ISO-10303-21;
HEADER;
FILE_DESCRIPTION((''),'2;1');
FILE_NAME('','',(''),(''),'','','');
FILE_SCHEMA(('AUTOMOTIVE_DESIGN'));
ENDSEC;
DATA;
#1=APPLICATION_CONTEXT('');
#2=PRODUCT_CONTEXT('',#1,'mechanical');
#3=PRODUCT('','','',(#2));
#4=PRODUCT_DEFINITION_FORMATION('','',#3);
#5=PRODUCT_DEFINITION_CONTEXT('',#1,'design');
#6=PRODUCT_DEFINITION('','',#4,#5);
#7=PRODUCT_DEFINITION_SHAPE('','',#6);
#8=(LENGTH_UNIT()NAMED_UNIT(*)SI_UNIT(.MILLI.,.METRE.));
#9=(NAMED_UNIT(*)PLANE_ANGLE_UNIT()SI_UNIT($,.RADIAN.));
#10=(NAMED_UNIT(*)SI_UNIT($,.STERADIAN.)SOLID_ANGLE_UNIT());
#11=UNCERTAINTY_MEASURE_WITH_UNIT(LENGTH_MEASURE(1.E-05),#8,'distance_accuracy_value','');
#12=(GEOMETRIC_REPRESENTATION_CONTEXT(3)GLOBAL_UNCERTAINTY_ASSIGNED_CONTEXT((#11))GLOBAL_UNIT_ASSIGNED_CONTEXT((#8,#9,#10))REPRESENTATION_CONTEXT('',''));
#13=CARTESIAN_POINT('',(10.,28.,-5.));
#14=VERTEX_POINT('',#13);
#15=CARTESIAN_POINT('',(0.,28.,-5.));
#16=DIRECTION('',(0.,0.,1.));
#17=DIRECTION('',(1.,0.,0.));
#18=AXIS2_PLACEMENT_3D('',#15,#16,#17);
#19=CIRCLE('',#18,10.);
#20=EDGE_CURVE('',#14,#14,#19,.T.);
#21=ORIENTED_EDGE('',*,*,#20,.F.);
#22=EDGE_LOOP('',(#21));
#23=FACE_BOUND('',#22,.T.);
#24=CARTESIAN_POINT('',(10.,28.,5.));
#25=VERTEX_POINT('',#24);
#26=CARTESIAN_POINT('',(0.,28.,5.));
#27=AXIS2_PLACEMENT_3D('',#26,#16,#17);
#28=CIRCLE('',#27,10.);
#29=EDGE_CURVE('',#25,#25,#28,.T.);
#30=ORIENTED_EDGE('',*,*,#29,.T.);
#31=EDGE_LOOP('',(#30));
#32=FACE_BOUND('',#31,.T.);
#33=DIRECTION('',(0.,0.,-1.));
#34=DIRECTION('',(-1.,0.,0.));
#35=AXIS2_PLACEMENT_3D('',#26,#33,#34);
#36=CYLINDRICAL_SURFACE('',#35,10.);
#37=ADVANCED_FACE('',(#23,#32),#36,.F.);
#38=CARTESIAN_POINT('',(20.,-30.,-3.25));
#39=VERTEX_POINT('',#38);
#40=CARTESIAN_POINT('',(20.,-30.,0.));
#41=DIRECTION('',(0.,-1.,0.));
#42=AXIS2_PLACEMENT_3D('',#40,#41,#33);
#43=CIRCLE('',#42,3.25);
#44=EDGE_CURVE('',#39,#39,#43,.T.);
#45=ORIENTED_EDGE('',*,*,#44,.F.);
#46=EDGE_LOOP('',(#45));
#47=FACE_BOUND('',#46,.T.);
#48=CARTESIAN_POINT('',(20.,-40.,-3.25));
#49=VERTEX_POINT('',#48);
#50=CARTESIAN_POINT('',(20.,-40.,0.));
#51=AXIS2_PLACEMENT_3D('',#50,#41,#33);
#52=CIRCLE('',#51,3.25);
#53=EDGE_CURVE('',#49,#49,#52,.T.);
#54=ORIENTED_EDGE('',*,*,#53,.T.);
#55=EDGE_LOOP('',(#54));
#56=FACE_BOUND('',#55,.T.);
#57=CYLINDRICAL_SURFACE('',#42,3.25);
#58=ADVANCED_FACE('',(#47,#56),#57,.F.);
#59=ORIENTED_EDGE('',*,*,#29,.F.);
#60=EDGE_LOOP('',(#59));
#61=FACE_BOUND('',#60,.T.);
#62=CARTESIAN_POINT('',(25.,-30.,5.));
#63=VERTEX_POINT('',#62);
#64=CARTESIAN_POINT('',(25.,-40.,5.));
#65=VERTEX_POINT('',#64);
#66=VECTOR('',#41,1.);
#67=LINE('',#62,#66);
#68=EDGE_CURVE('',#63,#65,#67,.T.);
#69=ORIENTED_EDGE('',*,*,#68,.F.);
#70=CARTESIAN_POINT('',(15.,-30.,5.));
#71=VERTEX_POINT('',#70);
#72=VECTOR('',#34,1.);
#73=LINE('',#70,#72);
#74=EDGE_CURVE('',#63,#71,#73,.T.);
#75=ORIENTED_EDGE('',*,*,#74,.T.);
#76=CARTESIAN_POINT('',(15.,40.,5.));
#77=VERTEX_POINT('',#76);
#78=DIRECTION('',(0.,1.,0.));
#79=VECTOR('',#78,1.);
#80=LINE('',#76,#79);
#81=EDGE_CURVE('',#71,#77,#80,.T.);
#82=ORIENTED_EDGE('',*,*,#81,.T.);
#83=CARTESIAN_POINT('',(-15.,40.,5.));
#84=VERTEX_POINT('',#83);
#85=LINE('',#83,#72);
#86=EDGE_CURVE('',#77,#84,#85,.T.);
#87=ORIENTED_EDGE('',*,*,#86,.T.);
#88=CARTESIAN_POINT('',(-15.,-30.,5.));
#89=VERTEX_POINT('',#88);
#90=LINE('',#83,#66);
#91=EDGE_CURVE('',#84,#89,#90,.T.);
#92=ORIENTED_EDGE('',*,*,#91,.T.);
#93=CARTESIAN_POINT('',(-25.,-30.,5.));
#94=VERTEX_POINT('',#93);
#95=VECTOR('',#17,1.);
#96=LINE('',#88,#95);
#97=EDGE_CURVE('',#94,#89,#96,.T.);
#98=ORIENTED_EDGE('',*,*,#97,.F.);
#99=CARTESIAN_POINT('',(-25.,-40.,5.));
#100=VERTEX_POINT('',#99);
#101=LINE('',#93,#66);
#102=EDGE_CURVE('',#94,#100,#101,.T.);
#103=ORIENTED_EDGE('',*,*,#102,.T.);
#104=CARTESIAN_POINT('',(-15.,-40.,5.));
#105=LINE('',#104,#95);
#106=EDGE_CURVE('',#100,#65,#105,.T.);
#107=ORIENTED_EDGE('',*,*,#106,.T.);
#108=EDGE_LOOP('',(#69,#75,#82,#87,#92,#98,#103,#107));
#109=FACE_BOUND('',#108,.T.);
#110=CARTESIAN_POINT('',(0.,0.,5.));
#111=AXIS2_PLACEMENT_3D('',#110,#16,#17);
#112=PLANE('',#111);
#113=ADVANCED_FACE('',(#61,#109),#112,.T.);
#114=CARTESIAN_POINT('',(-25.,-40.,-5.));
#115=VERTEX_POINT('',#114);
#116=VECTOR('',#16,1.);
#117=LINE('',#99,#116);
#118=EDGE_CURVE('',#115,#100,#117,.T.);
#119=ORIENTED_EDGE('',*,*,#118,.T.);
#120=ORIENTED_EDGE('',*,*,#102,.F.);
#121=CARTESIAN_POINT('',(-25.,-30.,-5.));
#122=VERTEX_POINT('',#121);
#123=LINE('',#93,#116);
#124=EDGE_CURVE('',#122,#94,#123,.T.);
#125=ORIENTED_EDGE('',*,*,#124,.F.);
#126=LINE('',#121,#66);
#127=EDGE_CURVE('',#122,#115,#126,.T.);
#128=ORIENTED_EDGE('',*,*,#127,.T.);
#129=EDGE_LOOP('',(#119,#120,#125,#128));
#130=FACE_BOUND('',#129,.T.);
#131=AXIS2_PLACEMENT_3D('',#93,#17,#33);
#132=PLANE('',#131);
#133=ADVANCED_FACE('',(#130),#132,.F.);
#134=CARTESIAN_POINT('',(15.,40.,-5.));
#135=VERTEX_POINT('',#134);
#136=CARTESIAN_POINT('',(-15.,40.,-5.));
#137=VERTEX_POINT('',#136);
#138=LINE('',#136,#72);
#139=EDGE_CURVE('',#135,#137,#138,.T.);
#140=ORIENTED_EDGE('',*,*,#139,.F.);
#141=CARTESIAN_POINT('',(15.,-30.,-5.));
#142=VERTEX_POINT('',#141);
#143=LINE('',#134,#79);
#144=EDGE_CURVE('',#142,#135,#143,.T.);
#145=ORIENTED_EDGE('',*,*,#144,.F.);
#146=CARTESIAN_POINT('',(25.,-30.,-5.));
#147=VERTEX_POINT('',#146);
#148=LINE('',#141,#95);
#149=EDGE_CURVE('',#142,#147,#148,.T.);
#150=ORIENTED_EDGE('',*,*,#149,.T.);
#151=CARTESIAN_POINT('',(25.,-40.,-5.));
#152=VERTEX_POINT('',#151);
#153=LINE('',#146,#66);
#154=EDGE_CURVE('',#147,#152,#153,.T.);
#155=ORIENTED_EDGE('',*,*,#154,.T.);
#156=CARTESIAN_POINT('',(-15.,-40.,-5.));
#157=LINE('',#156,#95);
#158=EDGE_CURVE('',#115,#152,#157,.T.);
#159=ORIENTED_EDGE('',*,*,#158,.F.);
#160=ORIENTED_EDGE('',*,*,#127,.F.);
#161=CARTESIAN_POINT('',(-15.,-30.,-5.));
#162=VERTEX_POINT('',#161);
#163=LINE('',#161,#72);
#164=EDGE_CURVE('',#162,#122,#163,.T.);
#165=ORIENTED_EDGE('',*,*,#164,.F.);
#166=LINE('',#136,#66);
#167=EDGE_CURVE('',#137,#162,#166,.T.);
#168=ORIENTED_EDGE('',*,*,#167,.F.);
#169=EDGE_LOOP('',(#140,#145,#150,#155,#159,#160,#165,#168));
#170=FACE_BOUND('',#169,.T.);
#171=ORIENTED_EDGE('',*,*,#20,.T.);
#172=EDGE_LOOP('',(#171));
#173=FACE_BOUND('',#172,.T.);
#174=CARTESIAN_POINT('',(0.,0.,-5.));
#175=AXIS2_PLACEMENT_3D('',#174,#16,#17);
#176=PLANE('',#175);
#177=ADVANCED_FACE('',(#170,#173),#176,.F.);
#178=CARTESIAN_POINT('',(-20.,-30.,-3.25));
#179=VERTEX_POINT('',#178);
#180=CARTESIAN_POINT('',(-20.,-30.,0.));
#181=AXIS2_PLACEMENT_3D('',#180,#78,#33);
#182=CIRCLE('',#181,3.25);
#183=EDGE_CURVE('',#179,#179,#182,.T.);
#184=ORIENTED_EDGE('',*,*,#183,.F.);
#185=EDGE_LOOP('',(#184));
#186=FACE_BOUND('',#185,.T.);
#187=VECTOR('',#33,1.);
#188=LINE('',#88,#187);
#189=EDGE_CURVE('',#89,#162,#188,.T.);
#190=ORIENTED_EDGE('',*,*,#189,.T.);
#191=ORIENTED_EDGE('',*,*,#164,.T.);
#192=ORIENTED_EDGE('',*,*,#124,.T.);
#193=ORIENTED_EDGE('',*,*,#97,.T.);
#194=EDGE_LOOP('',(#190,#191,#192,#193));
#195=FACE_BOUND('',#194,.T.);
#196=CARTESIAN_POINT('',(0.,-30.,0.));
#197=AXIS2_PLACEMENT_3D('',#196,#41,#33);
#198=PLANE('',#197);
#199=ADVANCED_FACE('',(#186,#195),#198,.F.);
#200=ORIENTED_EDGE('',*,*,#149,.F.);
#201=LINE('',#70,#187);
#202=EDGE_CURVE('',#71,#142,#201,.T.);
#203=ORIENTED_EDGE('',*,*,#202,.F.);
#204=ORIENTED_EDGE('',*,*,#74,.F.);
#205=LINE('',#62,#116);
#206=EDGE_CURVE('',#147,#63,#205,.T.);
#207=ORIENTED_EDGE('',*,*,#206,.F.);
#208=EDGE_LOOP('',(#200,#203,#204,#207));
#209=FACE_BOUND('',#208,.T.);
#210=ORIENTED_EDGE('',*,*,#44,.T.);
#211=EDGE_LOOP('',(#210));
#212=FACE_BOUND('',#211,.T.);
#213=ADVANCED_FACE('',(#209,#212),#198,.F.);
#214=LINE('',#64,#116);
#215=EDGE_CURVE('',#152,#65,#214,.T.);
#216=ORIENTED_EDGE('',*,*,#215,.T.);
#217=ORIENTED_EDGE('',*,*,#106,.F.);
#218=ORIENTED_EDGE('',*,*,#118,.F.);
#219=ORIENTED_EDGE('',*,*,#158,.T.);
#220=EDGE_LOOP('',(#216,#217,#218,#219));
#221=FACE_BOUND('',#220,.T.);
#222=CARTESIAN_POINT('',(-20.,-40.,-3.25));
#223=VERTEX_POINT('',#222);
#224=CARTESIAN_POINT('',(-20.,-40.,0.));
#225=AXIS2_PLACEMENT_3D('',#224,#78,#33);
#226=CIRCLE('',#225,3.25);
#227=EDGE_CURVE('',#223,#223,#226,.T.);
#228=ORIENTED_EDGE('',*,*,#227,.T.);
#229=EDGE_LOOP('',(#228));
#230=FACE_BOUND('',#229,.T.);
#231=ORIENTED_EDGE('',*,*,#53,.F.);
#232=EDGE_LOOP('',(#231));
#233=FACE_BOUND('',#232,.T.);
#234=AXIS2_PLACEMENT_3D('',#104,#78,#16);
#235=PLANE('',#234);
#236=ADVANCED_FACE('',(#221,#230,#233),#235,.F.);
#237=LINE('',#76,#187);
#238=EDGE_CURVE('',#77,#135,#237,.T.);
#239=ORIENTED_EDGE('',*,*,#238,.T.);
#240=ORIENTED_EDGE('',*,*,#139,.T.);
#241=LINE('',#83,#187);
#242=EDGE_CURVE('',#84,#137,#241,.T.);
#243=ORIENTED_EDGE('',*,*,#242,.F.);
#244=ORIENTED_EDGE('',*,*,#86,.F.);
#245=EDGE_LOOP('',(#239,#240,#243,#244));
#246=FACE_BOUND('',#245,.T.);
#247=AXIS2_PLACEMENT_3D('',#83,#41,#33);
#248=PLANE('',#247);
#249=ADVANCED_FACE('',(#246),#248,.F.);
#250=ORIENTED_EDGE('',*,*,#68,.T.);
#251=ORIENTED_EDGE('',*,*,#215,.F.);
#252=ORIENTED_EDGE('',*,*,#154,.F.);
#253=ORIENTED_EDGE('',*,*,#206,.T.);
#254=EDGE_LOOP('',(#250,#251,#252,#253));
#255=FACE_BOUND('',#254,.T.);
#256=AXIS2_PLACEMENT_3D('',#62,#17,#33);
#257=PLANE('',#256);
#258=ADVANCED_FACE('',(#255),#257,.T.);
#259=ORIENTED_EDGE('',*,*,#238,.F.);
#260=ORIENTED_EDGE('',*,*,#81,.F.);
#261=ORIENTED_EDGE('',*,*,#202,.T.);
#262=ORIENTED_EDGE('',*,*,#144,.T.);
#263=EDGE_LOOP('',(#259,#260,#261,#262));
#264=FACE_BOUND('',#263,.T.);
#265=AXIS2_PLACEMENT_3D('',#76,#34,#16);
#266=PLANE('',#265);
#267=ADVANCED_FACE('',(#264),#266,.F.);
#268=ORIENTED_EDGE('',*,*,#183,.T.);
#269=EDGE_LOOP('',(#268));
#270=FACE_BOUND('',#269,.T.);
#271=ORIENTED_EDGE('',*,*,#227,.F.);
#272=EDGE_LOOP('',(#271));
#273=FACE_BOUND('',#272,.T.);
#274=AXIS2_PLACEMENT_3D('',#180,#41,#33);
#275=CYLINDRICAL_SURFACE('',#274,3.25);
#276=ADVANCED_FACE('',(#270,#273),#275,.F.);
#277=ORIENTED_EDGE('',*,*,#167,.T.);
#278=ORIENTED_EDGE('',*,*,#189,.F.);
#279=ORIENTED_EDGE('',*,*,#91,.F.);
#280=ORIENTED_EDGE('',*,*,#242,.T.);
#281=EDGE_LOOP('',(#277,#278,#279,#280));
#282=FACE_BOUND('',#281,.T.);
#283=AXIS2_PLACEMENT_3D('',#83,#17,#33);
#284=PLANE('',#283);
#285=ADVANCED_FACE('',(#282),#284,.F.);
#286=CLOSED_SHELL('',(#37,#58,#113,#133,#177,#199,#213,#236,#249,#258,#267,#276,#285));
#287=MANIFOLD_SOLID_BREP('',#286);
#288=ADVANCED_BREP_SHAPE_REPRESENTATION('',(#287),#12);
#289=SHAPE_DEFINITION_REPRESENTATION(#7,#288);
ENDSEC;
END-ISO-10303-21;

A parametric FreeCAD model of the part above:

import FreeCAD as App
import Part
import Sketcher
from FreeCAD import Vector
Q = App.Units.Quantity

doc = App.newDocument("Part")
body = doc.addObject("PartDesign::Body", "Body")

# Sketch on XY plane
sketch1 = body.newObject("Sketcher::SketchObject", "Sketch")
sketch1.AttachmentSupport = (doc.getObject("XY_Plane"), [""])
sketch1.MapMode = "FlatFace"
sketch1.addGeometry([
    Part.LineSegment(Vector(-15, 40, 0), Vector(-15, -40, 0)),  # 0
    Part.LineSegment(Vector(-15, -40, 0), Vector(15, -40, 0)),  # 1
    Part.LineSegment(Vector(15, -40, 0), Vector(15, 40, 0)),  # 2
    Part.LineSegment(Vector(15, 40, 0), Vector(-15, 40, 0)),  # 3
    Part.Circle(Vector(0, 28, 0), Vector(0, 0, 1), 10),  # 4
], False)
sketch1.addConstraint([
    Sketcher.Constraint("Coincident", 0, 2, 1, 1),
    Sketcher.Constraint("Coincident", 1, 2, 2, 1),
    Sketcher.Constraint("Coincident", 2, 2, 3, 1),
    Sketcher.Constraint("Coincident", 3, 2, 0, 1),
    Sketcher.Constraint("Vertical", 0),
    Sketcher.Constraint("Horizontal", 1),
    Sketcher.Constraint("Vertical", 2),
    Sketcher.Constraint("Horizontal", 3),
    Sketcher.Constraint("Symmetric", 0, 2, 2, 2, -1, 1),
    Sketcher.Constraint("PointOnObject", 4, 3, -2),
    Sketcher.Constraint("Diameter", 4, Q("20 mm")),
    Sketcher.Constraint("DistanceX", 1, 1, 1, 2, Q("30 mm")),
    Sketcher.Constraint("DistanceY", 0, 2, 0, 1, Q("80 mm")),
    Sketcher.Constraint("DistanceY", -1, 1, 4, 3, Q("28 mm")),
])
pad1 = body.newObject("PartDesign::Pad", "Pad")
pad1.Profile = sketch1
pad1.Length = 10
pad1.Midplane = True

# Sketch on XZ plane
sketch2 = body.newObject("Sketcher::SketchObject", "Sketch001")
sketch2.AttachmentSupport = (doc.getObject("XZ_Plane"), [""])
sketch2.MapMode = "FlatFace"
sketch2.AttachmentOffset = App.Placement(Vector(0, 0, 40), App.Rotation())
sketch2.addGeometry([
    Part.LineSegment(Vector(15, 5, 0), Vector(15, -5, 0)),  # 0
    Part.LineSegment(Vector(15, -5, 0), Vector(25, -5, 0)),  # 1
    Part.LineSegment(Vector(25, -5, 0), Vector(25, 5, 0)),  # 2
    Part.LineSegment(Vector(25, 5, 0), Vector(15, 5, 0)),  # 3
    Part.Circle(Vector(20, 0, 0), Vector(0, 0, 1), 3.2),  # 4
], False)
sketch2.addConstraint([
    Sketcher.Constraint("Coincident", 0, 2, 1, 1),
    Sketcher.Constraint("Coincident", 1, 2, 2, 1),
    Sketcher.Constraint("Coincident", 2, 2, 3, 1),
    Sketcher.Constraint("Coincident", 3, 2, 0, 1),
    Sketcher.Constraint("Vertical", 0),
    Sketcher.Constraint("Horizontal", 1),
    Sketcher.Constraint("Vertical", 2),
    Sketcher.Constraint("Horizontal", 3),
    Sketcher.Constraint("PointOnObject", 4, 3, -1),
    Sketcher.Constraint("Equal", 3, 0),
    Sketcher.Constraint("Diameter", 4, Q("6.5 mm")),
    Sketcher.Constraint("DistanceX", 1, 1, 1, 2, Q("10 mm")),
    Sketcher.Constraint("DistanceX", -1, 1, 4, 3, Q("20 mm")),
    Sketcher.Constraint("DistanceX", -1, 1, 0, 2, Q("15 mm")),
    Sketcher.Constraint("DistanceY", 0, 2, -1, 1, Q("5 mm")),
])
pad2 = body.newObject("PartDesign::Pad", "Pad001")
pad2.Profile = sketch2
pad2.Length = 10
pad2.Reversed = True
doc.recompute()

mirrored = body.newObject("PartDesign::Mirrored", "Mirrored")
mirrored.Originals = [pad2]
mirrored.MirrorPlane = (doc.getObject("YZ_Plane"), [""])
body.Tip = mirrored

doc.recompute()
